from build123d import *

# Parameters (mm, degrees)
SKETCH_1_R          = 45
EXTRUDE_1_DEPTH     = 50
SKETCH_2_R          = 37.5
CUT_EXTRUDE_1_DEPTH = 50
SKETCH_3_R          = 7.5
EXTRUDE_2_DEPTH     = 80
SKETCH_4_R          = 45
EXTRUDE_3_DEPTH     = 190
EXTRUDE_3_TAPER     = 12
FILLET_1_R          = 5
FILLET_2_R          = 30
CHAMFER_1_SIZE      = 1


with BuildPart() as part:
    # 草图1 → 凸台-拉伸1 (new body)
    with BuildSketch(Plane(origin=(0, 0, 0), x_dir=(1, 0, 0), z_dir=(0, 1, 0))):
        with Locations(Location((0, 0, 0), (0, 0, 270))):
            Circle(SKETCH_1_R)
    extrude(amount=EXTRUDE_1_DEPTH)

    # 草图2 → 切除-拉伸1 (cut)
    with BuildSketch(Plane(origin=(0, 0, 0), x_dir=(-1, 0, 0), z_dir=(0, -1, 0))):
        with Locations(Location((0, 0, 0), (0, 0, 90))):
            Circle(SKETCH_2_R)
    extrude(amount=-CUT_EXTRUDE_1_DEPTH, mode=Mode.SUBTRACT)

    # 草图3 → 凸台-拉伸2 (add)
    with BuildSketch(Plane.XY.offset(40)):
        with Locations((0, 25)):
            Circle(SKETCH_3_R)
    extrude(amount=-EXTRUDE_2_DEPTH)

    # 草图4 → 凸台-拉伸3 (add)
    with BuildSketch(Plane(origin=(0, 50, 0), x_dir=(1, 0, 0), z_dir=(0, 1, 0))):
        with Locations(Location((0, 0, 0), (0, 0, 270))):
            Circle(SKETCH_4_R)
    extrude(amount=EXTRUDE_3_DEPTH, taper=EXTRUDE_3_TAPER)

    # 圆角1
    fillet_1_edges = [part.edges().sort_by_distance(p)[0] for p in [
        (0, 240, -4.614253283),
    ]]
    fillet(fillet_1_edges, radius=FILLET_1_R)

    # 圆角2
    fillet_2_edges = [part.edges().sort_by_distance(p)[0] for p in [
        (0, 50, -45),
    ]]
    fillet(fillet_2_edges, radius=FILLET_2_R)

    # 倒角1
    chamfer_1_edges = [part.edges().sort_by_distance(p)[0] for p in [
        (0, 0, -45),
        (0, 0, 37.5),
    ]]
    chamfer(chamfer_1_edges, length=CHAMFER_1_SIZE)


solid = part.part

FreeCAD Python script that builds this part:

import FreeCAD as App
import Part
import Sketcher
Q = App.Units.Quantity


def edges_at(feature, points):
    """Names of the edges that pass closest to the given points."""
    edges = feature.Shape.Edges
    near = lambda p: min(range(len(edges)), key=lambda i: edges[i].distToShape(Part.Vertex(*p))[0])
    return sorted({f"Edge{near(p) + 1}" for p in points})

doc = App.newDocument("Part")
body = doc.addObject("PartDesign::Body", "Body")

# Sketch on XZ plane
sketch1 = body.newObject("Sketcher::SketchObject", "Sketch")
sketch1.AttachmentSupport = (doc.getObject("XZ_Plane"), [""])
sketch1.MapMode = "FlatFace"
sketch1.addGeometry(Part.Circle(App.Vector(0, 0, 0), App.Vector(0, 0, 1), 45), False)
sketch1.addConstraint([
    Sketcher.Constraint("Coincident", 0, 3, -1, 1),
    Sketcher.Constraint("Diameter", 0, Q("90 mm")),
])
pad1 = body.newObject("PartDesign::Pad", "Pad")
pad1.Profile = sketch1
pad1.Length = 50
pad1.Reversed = True

# Sketch on XZ plane
sketch2 = body.newObject("Sketcher::SketchObject", "Sketch001")
sketch2.AttachmentSupport = (doc.getObject("XZ_Plane"), [""])
sketch2.MapMode = "FlatFace"
sketch2.addGeometry(Part.Circle(App.Vector(0, 0, 0), App.Vector(0, 0, 1), 37.5), False)
sketch2.addConstraint([
    Sketcher.Constraint("Coincident", 0, 3, -1, 1),
    Sketcher.Constraint("Diameter", 0, Q("75 mm")),
])
pocket1 = body.newObject("PartDesign::Pocket", "Pocket")
pocket1.Profile = sketch2
pocket1.Length = 50

# Sketch on XY plane
sketch3 = body.newObject("Sketcher::SketchObject", "Sketch002")
sketch3.AttachmentSupport = (doc.getObject("XY_Plane"), [""])
sketch3.MapMode = "FlatFace"
sketch3.AttachmentOffset = App.Placement(App.Vector(0, 0, 40), App.Rotation())
sketch3.addGeometry(Part.Circle(App.Vector(0, 25, 0), App.Vector(0, 0, 1), 7.5), False)
sketch3.addConstraint([
    Sketcher.Constraint("PointOnObject", 0, 3, -2),
    Sketcher.Constraint("Diameter", 0, Q("15 mm")),
    Sketcher.Constraint("DistanceY", -1, 1, 0, 3, Q("25 mm")),
])
pad2 = body.newObject("PartDesign::Pad", "Pad001")
pad2.Profile = sketch3
pad2.Length = 80
pad2.Reversed = True

# Sketch on XZ plane
sketch4 = body.newObject("Sketcher::SketchObject", "Sketch003")
sketch4.AttachmentSupport = (doc.getObject("XZ_Plane"), [""])
sketch4.MapMode = "FlatFace"
sketch4.AttachmentOffset = App.Placement(App.Vector(0, 0, -50), App.Rotation())
sketch4.addGeometry(Part.Circle(App.Vector(0, 0, 0), App.Vector(0, 0, 1), 45), False)
sketch4.addConstraint([
    Sketcher.Constraint("Coincident", 0, 3, -1, 1),
    Sketcher.Constraint("Diameter", 0, Q("90 mm")),
])
pad3 = body.newObject("PartDesign::Pad", "Pad002")
pad3.Profile = sketch4
pad3.Length = 190
pad3.Reversed = True
pad3.TaperAngle = -12
doc.recompute()

fillet = body.newObject("PartDesign::Fillet", "Fillet")
fillet.Base = (pad3, edges_at(pad3, [(0, 240, -4.614)]))
fillet.Radius = 5
doc.recompute()

fillet2 = body.newObject("PartDesign::Fillet", "Fillet001")
fillet2.Base = (fillet, edges_at(fillet, [(0, 50, -45)]))
fillet2.Radius = 30
doc.recompute()

chamfer = body.newObject("PartDesign::Chamfer", "Chamfer")
chamfer.Base = (fillet2, edges_at(fillet2, [(0, 0, -45), (0, 0, 37.5)]))
chamfer.Size = 1

doc.recompute()
